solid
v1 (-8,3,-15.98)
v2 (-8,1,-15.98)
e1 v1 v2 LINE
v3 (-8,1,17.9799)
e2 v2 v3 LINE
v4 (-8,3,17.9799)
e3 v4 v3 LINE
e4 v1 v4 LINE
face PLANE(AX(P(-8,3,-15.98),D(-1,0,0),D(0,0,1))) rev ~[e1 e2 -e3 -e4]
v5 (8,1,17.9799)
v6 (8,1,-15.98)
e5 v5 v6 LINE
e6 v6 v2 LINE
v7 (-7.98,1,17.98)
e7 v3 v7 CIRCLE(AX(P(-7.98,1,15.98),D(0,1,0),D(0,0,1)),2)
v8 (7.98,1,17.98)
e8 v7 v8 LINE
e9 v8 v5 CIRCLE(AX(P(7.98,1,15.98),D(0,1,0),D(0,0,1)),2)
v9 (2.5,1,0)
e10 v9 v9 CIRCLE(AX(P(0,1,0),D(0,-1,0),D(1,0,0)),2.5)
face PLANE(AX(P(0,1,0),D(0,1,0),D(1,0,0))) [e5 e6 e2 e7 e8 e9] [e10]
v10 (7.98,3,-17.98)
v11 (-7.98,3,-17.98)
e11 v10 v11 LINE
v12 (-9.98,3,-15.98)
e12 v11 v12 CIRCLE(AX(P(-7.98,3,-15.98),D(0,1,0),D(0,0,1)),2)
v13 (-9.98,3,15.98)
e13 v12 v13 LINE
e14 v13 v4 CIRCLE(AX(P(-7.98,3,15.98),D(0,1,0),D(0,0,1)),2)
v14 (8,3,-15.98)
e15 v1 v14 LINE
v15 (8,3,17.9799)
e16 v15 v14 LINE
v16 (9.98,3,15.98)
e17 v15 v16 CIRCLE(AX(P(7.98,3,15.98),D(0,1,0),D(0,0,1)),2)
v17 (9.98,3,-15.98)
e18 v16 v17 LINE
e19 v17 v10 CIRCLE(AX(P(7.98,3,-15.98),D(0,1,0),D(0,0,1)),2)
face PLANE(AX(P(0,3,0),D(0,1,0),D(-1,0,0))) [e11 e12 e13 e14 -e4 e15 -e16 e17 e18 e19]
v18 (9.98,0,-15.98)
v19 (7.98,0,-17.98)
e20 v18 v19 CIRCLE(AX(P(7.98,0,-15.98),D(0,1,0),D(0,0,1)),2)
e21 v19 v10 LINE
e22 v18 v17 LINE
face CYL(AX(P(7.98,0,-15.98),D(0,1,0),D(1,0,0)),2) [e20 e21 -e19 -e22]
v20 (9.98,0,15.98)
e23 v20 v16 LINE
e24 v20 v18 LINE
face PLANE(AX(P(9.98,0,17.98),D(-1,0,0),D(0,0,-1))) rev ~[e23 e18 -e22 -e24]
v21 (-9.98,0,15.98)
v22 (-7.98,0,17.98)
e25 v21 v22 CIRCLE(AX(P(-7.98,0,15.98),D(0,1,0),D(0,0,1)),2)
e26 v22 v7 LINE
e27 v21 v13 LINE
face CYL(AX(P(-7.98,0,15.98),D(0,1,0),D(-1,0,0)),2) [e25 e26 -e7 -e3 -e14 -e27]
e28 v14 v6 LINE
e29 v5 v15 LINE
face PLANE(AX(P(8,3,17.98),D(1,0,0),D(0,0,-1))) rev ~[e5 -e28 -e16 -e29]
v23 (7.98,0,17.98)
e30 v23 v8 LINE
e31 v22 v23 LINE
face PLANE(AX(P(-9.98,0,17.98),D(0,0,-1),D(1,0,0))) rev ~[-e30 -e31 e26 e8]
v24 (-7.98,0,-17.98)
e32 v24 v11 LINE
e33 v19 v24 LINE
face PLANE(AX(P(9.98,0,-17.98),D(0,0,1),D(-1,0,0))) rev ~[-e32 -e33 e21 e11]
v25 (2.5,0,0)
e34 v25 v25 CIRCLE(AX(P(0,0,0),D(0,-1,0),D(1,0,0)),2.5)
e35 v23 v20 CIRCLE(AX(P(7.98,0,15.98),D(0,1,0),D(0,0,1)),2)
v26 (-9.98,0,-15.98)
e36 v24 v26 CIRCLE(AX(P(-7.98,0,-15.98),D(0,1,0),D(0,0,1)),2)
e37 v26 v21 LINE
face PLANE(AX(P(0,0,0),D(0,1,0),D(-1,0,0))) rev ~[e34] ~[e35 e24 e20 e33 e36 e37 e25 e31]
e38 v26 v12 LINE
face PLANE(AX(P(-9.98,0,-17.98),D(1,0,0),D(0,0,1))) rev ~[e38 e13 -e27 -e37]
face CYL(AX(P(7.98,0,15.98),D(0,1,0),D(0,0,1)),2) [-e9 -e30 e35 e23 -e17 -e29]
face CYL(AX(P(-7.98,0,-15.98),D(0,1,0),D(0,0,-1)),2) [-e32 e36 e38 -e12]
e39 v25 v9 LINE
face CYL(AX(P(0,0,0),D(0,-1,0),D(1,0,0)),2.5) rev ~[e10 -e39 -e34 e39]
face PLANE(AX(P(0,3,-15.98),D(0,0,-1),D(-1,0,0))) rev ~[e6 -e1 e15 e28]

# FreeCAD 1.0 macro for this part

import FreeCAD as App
import Part
import Sketcher
from FreeCAD import Vector


def edges_at(feature, points):
    """Names of the edges that pass closest to the given points."""
    edges = feature.Shape.Edges
    near = lambda p: min(range(len(edges)), key=lambda i: edges[i].distToShape(Part.Vertex(*p))[0])
    return sorted({f"Edge{near(p) + 1}" for p in points})


def add_polygon(sketch, points):
    """Adds a closed chain of lines whose ends are joined by coincident constraints."""
    first, n = sketch.GeometryCount, len(points)
    for a, b in zip(points, points[1:] + points[:1]):
        sketch.addGeometry(Part.LineSegment(App.Vector(*a, 0), App.Vector(*b, 0)), False)
    for i in range(n):
        sketch.addConstraint(Sketcher.Constraint("Coincident", first + i, 2, first + (i + 1) % n, 1))

doc = App.newDocument("Part")
body = doc.addObject("PartDesign::Body", "Body")

# Sketch on XZ plane
sketch1 = body.newObject("Sketcher::SketchObject", "Sketch")
sketch1.AttachmentSupport = (doc.getObject("XZ_Plane"), [""])
sketch1.MapMode = "FlatFace"
add_polygon(sketch1, [(-10, -18), (-10, 18), (10, 18), (10, -18)])  # lines 0-3
sketch1.addConstraint([
    Sketcher.Constraint("Vertical", 0),
    Sketcher.Constraint("Horizontal", 1),
    Sketcher.Constraint("Vertical", 2),
    Sketcher.Constraint("Horizontal", 3),
    Sketcher.Constraint("Symmetric", 0, 2, 2, 2, -1, 1),
    Sketcher.Constraint("DistanceX", 1, 1, 1, 2, 19.96),
    Sketcher.Constraint("DistanceY", 0, 1, 0, 2, 35.96),
])
pad1 = body.newObject("PartDesign::Pad", "Pad")
pad1.Profile = sketch1
pad1.Length = 3
pad1.Reversed = True

# Sketch on XZ plane
sketch2 = body.newObject("Sketcher::SketchObject", "Sketch001")
sketch2.AttachmentSupport = (doc.getObject("XZ_Plane"), [""])
sketch2.MapMode = "FlatFace"
sketch2.AttachmentOffset = App.Placement(Vector(0, 0, -3), App.Rotation())
add_polygon(sketch2, [(-8, -16), (-8, 18), (8, 18), (8, -16)])  # lines 0-3
sketch2.addConstraint([
    Sketcher.Constraint("Vertical", 0),
    Sketcher.Constraint("Horizontal", 1),
    Sketcher.Constraint("Vertical", 2),
    Sketcher.Constraint("Horizontal", 3),
    Sketcher.Constraint("DistanceX", 1, 1, 1, 2, 16.0),
    Sketcher.Constraint("DistanceX", 0, 2, -1, 1, 8.0),
    Sketcher.Constraint("DistanceY", 0, 1, 0, 2, 33.96),
    Sketcher.Constraint("DistanceY", -1, 1, 0, 2, 17.98),
])
pocket1 = body.newObject("PartDesign::Pocket", "Pocket")
pocket1.Profile = sketch2
pocket1.Length = 2
pocket1.Reversed = True
doc.recompute()

fillet = body.newObject("PartDesign::Fillet", "Fillet")
fillet.Base = (pocket1, edges_at(pocket1, [(-9.98, 1.5, 17.98)]))
fillet.Radius = 2
doc.recompute()

fillet2 = body.newObject("PartDesign::Fillet", "Fillet001")
fillet2.Base = (fillet, edges_at(fillet, [(9.98, 1.5, 17.98)]))
fillet2.Radius = 2
doc.recompute()

fillet3 = body.newObject("PartDesign::Fillet", "Fillet002")
fillet3.Base = (fillet2, edges_at(fillet2, [(9.98, 1.5, -17.98)]))
fillet3.Radius = 2
doc.recompute()

fillet4 = body.newObject("PartDesign::Fillet", "Fillet003")
fillet4.Base = (fillet3, edges_at(fillet3, [(-9.98, 1.5, -17.98)]))
fillet4.Radius = 2

# Sketch on XZ plane
sketch3 = body.newObject("Sketcher::SketchObject", "Sketch002")
sketch3.AttachmentSupport = (doc.getObject("XZ_Plane"), [""])
sketch3.MapMode = "FlatFace"
sketch3.addGeometry(Part.Circle(Vector(0, 0, 0), Vector(0, 0, 1), 2.5), False)
sketch3.addConstraint([
    Sketcher.Constraint("Coincident", 0, 3, -1, 1),
    Sketcher.Constraint("Diameter", 0, 5.0),
])
pocket2 = body.newObject("PartDesign::Pocket", "Pocket001")
pocket2.Profile = sketch3
pocket2.Type = "UpToFirst"

doc.recompute()
